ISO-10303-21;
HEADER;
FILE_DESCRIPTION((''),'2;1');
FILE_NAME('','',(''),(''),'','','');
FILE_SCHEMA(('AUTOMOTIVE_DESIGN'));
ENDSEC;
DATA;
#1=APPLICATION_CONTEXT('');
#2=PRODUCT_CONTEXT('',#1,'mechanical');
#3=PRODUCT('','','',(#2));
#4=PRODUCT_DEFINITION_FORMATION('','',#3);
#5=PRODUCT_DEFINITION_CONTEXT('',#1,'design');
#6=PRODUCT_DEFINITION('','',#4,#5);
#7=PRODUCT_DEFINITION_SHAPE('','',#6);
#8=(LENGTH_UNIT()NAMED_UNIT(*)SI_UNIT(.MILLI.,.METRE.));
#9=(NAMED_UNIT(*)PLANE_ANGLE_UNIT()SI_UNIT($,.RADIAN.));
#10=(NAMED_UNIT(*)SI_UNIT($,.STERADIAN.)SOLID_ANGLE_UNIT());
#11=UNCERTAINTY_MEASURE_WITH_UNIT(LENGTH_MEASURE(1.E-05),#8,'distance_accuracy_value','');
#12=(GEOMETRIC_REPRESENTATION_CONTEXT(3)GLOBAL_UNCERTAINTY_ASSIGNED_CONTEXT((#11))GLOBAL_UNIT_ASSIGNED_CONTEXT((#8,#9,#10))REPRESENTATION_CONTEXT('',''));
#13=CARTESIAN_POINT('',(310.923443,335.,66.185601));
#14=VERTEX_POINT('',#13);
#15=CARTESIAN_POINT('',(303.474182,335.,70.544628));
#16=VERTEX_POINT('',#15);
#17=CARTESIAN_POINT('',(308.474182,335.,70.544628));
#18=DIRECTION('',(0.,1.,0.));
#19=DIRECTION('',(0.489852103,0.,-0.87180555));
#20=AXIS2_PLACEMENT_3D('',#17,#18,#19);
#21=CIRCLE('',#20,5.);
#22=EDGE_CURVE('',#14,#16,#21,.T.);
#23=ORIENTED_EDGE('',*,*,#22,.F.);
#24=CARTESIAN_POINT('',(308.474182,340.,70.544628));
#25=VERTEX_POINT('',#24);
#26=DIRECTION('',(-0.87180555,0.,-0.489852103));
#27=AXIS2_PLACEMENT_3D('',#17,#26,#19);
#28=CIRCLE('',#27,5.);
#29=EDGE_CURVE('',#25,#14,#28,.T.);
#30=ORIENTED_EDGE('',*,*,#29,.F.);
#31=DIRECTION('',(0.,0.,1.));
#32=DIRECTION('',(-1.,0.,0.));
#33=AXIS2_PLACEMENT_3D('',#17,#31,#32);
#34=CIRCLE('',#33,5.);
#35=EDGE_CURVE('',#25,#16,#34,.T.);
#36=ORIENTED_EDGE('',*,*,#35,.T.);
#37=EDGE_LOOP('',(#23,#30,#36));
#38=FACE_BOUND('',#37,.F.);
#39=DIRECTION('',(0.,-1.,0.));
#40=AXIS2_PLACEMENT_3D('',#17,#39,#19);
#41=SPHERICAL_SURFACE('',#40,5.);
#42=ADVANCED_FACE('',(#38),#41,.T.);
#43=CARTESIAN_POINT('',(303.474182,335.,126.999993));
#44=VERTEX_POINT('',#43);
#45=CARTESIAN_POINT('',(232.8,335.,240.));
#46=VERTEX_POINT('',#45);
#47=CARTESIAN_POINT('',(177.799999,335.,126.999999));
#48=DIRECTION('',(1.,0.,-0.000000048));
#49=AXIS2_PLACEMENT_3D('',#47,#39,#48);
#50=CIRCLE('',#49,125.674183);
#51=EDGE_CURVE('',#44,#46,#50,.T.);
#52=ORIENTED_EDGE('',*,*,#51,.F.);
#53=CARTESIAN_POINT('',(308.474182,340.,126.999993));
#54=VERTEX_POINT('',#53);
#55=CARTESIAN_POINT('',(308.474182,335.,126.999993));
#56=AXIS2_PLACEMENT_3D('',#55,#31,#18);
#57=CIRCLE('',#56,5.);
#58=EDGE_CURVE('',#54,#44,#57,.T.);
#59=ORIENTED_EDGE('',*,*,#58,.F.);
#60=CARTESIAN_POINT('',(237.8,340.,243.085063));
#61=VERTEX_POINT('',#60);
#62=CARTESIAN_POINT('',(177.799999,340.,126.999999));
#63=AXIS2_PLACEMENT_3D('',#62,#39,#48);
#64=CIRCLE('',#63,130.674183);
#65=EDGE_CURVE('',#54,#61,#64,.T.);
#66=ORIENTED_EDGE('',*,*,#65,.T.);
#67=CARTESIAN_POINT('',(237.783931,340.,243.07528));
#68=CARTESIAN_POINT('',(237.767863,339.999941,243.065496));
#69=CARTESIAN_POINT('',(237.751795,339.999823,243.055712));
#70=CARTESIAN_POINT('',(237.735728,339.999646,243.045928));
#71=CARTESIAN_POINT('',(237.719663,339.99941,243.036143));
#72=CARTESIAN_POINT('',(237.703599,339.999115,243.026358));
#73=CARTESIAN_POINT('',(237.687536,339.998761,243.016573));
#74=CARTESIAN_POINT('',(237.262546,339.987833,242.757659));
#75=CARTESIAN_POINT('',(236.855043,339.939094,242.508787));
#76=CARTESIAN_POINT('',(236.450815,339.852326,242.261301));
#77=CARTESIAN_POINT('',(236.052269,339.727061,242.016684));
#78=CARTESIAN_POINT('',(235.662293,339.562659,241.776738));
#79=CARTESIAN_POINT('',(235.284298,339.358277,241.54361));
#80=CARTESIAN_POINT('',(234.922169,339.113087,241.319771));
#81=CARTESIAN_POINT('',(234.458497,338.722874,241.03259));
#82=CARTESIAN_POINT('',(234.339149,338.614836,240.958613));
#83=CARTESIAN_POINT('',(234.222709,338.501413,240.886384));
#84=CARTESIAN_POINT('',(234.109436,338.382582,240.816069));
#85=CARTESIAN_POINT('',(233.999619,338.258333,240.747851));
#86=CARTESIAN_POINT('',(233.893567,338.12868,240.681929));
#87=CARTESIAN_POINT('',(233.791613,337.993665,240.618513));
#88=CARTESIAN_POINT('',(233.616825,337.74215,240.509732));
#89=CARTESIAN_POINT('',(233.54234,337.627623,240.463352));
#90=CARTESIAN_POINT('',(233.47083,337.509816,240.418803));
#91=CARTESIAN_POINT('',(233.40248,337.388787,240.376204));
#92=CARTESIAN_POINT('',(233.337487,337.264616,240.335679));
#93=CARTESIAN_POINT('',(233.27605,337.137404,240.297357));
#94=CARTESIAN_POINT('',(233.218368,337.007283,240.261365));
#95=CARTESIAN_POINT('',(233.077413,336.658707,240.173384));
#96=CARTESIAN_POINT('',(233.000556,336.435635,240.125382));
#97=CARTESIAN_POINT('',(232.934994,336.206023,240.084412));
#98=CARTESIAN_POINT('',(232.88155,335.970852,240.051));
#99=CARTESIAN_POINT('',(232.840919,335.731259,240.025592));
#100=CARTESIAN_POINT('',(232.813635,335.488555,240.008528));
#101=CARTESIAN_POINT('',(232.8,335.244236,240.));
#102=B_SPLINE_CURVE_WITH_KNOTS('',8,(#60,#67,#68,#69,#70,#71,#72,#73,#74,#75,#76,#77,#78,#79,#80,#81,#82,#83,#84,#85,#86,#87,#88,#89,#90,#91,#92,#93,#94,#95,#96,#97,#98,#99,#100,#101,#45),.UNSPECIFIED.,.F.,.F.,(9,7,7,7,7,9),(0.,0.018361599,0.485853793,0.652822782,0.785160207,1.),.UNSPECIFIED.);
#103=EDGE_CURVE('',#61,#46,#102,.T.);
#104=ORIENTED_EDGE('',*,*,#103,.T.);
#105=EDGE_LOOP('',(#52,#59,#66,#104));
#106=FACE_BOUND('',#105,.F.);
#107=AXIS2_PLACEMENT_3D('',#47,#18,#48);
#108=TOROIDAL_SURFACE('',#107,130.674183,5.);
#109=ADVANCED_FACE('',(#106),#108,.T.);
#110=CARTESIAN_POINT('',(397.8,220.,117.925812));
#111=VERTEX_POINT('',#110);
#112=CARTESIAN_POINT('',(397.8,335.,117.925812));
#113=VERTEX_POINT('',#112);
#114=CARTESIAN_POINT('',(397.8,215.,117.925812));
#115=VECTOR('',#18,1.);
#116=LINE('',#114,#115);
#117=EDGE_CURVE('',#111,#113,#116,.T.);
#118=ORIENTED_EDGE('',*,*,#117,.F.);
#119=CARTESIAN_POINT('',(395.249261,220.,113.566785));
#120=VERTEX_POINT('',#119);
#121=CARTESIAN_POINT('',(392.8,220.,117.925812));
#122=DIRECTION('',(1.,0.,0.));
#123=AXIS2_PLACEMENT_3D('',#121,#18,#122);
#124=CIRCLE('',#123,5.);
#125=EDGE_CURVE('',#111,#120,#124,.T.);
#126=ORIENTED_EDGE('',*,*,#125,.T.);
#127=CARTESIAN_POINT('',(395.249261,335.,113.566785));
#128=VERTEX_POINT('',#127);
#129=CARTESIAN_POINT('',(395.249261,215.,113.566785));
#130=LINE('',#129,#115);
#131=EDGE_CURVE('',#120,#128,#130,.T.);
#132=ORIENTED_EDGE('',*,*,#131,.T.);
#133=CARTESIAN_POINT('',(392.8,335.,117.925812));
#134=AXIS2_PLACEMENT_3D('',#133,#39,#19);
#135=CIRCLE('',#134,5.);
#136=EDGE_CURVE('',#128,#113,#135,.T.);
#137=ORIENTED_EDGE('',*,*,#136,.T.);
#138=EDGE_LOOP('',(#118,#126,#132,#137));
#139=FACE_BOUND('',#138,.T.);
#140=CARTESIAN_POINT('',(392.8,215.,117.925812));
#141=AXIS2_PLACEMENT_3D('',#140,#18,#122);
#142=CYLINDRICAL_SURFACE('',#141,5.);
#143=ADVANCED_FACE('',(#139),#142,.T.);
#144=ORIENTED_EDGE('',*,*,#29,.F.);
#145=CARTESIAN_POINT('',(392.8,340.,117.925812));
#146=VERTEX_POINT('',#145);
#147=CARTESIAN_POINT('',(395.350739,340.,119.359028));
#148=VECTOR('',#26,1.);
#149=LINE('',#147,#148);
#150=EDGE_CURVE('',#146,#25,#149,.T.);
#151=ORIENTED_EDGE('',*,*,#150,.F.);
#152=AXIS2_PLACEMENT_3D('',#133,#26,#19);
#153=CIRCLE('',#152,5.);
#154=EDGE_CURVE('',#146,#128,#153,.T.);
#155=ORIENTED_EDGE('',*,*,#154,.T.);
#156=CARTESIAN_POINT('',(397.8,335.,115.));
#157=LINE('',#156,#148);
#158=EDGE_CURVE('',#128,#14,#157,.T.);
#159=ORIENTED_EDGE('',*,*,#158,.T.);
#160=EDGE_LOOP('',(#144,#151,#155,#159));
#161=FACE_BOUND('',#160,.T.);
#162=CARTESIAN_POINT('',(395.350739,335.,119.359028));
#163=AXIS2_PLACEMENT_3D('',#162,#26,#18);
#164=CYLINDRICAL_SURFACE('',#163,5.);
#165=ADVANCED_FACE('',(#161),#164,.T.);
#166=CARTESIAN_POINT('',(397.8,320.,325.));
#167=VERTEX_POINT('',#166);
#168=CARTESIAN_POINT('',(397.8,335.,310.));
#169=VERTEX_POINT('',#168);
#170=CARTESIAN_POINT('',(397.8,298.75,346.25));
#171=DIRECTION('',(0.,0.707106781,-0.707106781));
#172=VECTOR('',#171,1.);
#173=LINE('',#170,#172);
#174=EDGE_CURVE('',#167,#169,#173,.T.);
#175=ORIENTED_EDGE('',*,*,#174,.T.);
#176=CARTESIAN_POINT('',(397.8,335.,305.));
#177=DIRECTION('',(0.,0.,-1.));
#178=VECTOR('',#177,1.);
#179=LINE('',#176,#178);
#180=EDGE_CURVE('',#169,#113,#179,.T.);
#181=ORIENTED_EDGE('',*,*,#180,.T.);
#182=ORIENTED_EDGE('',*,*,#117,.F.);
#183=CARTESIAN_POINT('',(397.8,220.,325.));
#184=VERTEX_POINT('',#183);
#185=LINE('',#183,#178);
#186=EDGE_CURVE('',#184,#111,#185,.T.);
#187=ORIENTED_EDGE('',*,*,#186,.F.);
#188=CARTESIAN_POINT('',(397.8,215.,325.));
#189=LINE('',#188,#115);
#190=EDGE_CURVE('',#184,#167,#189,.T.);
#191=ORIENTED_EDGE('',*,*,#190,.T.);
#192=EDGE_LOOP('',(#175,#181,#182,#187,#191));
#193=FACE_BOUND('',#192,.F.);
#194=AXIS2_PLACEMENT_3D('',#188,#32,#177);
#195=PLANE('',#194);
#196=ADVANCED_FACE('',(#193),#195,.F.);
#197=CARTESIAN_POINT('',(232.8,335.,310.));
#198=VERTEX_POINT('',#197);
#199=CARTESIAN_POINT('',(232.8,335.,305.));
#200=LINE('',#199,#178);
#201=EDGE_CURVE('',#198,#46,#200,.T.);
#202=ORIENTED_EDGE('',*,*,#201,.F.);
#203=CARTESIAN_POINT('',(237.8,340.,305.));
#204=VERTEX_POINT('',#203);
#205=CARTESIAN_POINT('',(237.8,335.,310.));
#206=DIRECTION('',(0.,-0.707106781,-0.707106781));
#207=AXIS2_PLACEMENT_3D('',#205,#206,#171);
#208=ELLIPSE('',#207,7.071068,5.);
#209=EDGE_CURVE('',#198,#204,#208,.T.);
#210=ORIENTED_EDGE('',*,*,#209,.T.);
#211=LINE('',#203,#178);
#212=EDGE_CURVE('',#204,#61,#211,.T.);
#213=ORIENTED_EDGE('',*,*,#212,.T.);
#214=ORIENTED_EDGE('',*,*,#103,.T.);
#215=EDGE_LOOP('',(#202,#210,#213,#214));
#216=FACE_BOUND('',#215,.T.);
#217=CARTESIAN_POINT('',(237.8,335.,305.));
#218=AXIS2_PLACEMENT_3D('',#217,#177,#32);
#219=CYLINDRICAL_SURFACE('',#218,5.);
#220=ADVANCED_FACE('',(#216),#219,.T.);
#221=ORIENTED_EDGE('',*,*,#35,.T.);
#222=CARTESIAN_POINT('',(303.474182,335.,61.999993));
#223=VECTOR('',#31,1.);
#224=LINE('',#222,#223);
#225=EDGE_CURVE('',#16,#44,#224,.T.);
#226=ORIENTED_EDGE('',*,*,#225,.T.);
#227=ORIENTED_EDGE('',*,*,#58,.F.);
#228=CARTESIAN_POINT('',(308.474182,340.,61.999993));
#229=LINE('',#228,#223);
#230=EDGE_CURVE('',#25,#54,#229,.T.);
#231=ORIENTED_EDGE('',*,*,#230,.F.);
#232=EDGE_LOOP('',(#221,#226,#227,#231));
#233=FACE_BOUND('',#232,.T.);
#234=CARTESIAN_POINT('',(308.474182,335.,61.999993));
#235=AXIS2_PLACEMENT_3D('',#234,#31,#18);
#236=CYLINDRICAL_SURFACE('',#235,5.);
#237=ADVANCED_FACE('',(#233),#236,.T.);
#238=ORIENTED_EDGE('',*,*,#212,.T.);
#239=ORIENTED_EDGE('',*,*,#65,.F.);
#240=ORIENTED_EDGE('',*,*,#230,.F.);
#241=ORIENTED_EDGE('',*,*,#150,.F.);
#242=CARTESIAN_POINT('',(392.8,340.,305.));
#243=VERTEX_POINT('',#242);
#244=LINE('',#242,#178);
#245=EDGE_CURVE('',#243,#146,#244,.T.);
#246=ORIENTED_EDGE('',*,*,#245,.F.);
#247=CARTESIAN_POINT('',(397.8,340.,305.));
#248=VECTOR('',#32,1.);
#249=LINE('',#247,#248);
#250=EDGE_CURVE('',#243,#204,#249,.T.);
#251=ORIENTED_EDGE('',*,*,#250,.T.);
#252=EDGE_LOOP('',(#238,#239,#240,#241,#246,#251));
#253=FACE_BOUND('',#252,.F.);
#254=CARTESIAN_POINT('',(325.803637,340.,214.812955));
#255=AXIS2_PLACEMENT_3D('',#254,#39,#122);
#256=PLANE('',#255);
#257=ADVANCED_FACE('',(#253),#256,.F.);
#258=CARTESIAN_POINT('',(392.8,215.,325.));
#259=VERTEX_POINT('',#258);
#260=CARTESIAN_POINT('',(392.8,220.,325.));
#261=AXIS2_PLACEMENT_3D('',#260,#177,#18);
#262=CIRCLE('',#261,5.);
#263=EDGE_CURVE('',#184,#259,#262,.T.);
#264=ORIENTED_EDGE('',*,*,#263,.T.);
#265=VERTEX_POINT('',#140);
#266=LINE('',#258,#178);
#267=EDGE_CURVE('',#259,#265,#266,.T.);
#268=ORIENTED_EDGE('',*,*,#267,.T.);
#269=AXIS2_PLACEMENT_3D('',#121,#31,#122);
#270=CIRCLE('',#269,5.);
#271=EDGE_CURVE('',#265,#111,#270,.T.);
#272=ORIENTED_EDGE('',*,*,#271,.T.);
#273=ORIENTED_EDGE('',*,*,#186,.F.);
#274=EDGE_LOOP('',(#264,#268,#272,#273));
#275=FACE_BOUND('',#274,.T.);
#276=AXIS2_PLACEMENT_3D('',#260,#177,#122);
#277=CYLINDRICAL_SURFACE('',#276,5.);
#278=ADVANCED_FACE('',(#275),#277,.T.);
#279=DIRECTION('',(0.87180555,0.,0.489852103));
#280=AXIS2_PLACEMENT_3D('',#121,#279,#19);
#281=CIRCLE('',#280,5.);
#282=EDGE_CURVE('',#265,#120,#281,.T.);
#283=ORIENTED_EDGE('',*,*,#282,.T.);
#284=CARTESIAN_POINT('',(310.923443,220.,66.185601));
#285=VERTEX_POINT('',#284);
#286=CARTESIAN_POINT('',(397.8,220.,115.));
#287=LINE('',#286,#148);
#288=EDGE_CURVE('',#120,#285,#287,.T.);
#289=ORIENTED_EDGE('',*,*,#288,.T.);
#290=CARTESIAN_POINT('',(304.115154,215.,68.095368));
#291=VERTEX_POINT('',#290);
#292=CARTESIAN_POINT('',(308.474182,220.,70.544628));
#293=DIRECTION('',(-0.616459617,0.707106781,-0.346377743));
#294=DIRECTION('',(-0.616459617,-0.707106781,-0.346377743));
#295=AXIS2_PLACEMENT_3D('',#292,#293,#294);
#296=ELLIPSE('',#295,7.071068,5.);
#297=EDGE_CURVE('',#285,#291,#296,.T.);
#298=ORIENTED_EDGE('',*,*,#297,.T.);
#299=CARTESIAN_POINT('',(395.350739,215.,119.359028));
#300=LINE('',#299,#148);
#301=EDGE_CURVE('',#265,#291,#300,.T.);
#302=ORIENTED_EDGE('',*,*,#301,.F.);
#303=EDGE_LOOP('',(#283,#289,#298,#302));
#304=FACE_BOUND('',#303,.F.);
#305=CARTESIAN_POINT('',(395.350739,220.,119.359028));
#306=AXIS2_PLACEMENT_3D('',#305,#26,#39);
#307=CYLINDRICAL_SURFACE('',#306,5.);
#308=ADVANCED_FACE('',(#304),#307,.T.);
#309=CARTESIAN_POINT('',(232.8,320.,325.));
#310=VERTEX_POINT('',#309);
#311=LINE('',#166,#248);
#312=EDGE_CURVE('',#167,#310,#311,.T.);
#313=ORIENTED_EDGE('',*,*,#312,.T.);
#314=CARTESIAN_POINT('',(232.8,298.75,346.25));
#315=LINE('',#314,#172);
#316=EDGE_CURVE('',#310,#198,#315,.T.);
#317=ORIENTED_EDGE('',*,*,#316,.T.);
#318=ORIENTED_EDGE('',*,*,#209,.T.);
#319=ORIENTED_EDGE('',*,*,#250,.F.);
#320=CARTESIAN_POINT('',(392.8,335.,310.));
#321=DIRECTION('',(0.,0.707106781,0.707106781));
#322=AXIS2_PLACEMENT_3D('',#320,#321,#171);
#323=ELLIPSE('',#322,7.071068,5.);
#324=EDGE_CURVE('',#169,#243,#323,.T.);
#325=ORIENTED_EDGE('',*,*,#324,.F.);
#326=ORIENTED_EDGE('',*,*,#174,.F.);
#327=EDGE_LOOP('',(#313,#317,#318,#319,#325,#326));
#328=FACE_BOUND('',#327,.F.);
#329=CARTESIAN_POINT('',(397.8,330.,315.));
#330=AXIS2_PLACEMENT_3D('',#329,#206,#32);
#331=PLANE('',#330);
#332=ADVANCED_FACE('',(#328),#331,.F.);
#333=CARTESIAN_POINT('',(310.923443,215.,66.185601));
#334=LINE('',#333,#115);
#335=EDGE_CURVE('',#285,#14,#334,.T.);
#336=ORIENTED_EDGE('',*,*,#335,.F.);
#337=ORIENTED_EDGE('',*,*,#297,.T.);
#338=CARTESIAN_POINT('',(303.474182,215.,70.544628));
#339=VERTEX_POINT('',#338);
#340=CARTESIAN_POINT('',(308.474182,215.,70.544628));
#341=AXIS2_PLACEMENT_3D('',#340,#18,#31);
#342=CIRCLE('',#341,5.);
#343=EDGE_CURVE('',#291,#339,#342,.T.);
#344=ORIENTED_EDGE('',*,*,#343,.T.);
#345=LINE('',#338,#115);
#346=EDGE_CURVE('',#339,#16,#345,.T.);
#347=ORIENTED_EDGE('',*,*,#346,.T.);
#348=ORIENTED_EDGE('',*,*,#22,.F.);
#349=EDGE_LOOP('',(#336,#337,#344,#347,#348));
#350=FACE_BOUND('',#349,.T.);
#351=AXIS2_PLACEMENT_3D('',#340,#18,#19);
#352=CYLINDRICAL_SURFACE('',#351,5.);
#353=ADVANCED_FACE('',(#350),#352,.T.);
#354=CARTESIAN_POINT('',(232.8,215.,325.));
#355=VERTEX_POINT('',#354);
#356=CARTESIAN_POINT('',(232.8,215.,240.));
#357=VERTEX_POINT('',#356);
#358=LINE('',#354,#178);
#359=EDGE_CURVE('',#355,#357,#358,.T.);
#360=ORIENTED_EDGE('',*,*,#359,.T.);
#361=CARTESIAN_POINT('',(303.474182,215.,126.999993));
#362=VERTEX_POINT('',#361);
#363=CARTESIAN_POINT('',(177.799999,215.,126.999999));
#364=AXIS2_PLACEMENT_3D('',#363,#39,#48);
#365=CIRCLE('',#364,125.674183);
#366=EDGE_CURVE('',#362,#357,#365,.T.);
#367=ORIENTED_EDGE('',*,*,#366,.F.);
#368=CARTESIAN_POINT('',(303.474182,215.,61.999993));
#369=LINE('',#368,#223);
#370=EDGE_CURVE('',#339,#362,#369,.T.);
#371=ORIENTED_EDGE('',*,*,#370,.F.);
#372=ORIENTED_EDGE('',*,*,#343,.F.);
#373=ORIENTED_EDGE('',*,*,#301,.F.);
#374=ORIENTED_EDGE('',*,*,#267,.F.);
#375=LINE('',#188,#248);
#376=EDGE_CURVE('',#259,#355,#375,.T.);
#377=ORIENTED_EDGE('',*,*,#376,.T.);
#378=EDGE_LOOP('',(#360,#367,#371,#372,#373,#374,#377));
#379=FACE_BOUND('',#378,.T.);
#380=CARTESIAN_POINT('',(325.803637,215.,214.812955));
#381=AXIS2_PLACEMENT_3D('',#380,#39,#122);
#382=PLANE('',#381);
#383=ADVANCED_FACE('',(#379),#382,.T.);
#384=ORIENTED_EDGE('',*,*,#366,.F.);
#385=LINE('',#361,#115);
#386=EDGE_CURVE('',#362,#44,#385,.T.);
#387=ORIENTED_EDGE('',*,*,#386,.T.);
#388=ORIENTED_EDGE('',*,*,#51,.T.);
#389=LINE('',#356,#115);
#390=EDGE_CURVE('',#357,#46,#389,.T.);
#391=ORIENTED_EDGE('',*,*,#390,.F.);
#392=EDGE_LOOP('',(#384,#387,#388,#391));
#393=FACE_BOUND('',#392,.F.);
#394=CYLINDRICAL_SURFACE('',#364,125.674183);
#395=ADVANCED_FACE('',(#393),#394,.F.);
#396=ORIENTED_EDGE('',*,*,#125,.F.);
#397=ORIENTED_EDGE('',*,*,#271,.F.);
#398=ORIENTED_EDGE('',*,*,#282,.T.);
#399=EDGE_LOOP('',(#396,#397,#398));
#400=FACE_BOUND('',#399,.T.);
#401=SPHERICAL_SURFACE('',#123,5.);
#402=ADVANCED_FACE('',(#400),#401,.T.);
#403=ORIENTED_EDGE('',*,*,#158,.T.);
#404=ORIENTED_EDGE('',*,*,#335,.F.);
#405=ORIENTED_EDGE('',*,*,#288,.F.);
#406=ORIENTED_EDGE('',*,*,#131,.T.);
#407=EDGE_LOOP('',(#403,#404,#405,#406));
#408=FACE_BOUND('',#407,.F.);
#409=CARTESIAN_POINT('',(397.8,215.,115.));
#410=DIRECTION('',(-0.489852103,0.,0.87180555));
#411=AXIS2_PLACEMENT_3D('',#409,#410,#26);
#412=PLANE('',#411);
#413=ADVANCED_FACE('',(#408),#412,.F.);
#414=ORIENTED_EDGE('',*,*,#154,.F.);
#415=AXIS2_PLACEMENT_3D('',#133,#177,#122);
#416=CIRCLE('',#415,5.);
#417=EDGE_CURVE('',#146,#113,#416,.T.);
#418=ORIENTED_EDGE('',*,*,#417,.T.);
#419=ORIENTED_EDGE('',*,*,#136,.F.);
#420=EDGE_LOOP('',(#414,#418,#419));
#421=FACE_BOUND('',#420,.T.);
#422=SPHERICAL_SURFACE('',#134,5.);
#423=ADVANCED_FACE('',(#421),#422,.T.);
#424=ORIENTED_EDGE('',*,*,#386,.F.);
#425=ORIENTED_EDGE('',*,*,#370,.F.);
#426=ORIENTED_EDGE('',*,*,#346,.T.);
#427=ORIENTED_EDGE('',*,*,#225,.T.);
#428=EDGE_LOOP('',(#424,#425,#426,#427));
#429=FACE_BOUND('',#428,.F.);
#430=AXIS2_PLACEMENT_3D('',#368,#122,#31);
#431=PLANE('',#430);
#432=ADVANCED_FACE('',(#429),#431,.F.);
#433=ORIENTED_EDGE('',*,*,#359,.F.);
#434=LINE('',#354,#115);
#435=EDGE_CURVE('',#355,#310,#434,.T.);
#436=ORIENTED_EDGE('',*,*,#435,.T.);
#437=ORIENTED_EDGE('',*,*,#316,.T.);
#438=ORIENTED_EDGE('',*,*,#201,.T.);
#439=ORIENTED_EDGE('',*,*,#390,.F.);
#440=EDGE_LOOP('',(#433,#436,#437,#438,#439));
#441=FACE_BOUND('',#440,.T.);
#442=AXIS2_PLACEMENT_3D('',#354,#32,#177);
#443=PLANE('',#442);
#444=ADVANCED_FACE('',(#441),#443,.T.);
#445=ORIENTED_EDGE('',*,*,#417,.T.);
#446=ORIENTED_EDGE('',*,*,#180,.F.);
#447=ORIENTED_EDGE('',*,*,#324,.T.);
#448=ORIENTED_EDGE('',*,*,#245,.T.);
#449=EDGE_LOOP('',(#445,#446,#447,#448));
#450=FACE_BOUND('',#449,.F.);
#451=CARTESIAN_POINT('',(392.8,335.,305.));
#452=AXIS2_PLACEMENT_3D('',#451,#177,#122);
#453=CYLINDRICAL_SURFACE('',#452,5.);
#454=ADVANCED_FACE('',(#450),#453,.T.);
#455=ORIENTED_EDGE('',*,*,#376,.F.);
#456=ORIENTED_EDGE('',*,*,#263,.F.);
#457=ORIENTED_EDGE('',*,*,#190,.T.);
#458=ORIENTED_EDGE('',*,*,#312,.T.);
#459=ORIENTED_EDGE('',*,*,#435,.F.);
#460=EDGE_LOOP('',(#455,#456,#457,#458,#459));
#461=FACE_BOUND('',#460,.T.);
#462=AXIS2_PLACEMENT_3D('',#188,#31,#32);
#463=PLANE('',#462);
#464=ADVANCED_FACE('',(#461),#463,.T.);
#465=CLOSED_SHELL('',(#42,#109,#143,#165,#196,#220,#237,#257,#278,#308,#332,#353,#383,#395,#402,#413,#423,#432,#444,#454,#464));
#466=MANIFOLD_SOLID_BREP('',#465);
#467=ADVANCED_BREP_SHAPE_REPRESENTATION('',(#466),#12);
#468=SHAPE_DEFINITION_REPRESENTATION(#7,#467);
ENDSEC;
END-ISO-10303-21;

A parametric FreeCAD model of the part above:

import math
import FreeCAD as App
import Part
import Sketcher


def edges_at(feature, points):
    """Names of the edges that pass closest to the given points."""
    edges = feature.Shape.Edges
    near = lambda p: min(range(len(edges)), key=lambda i: edges[i].distToShape(Part.Vertex(*p))[0])
    return sorted({f"Edge{near(p) + 1}" for p in points})

doc = App.newDocument("Part")
body = doc.addObject("PartDesign::Body", "Body")

# Sketch on XZ plane
sketch1 = body.newObject("Sketcher::SketchObject", "Sketch")
sketch1.AttachmentSupport = (doc.getObject("XZ_Plane"), [""])
sketch1.MapMode = "FlatFace"
sketch1.AttachmentOffset = App.Placement(App.Vector(0, 0, -215), App.Rotation())
sketch1.addGeometry([
    Part.LineSegment(App.Vector(398, 325, 0), App.Vector(233, 325, 0)),  # 0
    Part.LineSegment(App.Vector(233, 325, 0), App.Vector(233, 240, 0)),  # 1
    Part.ArcOfCircle(Part.Circle(App.Vector(178, 127, 0), App.Vector(0, 0, 1), 126), math.radians(0), math.radians(64)),  # 2
    Part.LineSegment(App.Vector(303, 127, 0), App.Vector(303, 62, 0)),  # 3
    Part.LineSegment(App.Vector(303, 62, 0), App.Vector(398, 115, 0)),  # 4
    Part.LineSegment(App.Vector(398, 115, 0), App.Vector(398, 325, 0)),  # 5
], False)
sketch1.addConstraint([
    Sketcher.Constraint("Coincident", 0, 2, 1, 1),
    Sketcher.Constraint("Coincident", 1, 2, 2, 2),
    Sketcher.Constraint("Tangent", 2, 1, 3, 1),
    Sketcher.Constraint("Coincident", 3, 2, 4, 1),
    Sketcher.Constraint("Coincident", 4, 2, 5, 1),
    Sketcher.Constraint("Coincident", 5, 2, 0, 1),
    Sketcher.Constraint("Horizontal", 0),
    Sketcher.Constraint("Vertical", 1),
    Sketcher.Constraint("Vertical", 3),
    Sketcher.Constraint("Vertical", 5),
    Sketcher.Constraint("DistanceX", 0, 2, 0, 1, 165.0),
    Sketcher.Constraint("DistanceY", 1, 2, 1, 1, 85.0),
    Sketcher.Constraint("DistanceY", 3, 2, 3, 1, 65.0),
    Sketcher.Constraint("DistanceY", 5, 1, 5, 2, 210.0),
    Sketcher.Constraint("DistanceY", -1, 1, 2, 3, 126.999999),
    Sketcher.Constraint("DistanceY", -1, 1, 0, 2, 325.0),
    Sketcher.Constraint("DistanceX", 2, 3, 0, 2, 55.000001),
    Sketcher.Constraint("DistanceX", -1, 1, 2, 3, 177.799999),
])
pad1 = body.newObject("PartDesign::Pad", "Pad")
pad1.Profile = sketch1
pad1.Length = 125
pad1.Reversed = True
doc.recompute()

chamfer = body.newObject("PartDesign::Chamfer", "Chamfer")
chamfer.Base = (pad1, edges_at(pad1, [(315.3, 340, 325)]))
chamfer.Size = 20
doc.recompute()

fillet = body.newObject("PartDesign::Fillet", "Fillet")
fillet.Base = (chamfer, edges_at(chamfer, [
    (397.8, 340, 210),
    (397.8, 277.5, 115),
    (350.637, 340, 88.5),
    (303.474, 340, 94.5),
    (284.351, 340, 193.641),
    (232.8, 340, 272.5),
    (397.8, 215, 220),
    (350.637, 215, 88.5),
    (303.474, 277.5, 62),
]))
fillet.Radius = 5

doc.recompute()
